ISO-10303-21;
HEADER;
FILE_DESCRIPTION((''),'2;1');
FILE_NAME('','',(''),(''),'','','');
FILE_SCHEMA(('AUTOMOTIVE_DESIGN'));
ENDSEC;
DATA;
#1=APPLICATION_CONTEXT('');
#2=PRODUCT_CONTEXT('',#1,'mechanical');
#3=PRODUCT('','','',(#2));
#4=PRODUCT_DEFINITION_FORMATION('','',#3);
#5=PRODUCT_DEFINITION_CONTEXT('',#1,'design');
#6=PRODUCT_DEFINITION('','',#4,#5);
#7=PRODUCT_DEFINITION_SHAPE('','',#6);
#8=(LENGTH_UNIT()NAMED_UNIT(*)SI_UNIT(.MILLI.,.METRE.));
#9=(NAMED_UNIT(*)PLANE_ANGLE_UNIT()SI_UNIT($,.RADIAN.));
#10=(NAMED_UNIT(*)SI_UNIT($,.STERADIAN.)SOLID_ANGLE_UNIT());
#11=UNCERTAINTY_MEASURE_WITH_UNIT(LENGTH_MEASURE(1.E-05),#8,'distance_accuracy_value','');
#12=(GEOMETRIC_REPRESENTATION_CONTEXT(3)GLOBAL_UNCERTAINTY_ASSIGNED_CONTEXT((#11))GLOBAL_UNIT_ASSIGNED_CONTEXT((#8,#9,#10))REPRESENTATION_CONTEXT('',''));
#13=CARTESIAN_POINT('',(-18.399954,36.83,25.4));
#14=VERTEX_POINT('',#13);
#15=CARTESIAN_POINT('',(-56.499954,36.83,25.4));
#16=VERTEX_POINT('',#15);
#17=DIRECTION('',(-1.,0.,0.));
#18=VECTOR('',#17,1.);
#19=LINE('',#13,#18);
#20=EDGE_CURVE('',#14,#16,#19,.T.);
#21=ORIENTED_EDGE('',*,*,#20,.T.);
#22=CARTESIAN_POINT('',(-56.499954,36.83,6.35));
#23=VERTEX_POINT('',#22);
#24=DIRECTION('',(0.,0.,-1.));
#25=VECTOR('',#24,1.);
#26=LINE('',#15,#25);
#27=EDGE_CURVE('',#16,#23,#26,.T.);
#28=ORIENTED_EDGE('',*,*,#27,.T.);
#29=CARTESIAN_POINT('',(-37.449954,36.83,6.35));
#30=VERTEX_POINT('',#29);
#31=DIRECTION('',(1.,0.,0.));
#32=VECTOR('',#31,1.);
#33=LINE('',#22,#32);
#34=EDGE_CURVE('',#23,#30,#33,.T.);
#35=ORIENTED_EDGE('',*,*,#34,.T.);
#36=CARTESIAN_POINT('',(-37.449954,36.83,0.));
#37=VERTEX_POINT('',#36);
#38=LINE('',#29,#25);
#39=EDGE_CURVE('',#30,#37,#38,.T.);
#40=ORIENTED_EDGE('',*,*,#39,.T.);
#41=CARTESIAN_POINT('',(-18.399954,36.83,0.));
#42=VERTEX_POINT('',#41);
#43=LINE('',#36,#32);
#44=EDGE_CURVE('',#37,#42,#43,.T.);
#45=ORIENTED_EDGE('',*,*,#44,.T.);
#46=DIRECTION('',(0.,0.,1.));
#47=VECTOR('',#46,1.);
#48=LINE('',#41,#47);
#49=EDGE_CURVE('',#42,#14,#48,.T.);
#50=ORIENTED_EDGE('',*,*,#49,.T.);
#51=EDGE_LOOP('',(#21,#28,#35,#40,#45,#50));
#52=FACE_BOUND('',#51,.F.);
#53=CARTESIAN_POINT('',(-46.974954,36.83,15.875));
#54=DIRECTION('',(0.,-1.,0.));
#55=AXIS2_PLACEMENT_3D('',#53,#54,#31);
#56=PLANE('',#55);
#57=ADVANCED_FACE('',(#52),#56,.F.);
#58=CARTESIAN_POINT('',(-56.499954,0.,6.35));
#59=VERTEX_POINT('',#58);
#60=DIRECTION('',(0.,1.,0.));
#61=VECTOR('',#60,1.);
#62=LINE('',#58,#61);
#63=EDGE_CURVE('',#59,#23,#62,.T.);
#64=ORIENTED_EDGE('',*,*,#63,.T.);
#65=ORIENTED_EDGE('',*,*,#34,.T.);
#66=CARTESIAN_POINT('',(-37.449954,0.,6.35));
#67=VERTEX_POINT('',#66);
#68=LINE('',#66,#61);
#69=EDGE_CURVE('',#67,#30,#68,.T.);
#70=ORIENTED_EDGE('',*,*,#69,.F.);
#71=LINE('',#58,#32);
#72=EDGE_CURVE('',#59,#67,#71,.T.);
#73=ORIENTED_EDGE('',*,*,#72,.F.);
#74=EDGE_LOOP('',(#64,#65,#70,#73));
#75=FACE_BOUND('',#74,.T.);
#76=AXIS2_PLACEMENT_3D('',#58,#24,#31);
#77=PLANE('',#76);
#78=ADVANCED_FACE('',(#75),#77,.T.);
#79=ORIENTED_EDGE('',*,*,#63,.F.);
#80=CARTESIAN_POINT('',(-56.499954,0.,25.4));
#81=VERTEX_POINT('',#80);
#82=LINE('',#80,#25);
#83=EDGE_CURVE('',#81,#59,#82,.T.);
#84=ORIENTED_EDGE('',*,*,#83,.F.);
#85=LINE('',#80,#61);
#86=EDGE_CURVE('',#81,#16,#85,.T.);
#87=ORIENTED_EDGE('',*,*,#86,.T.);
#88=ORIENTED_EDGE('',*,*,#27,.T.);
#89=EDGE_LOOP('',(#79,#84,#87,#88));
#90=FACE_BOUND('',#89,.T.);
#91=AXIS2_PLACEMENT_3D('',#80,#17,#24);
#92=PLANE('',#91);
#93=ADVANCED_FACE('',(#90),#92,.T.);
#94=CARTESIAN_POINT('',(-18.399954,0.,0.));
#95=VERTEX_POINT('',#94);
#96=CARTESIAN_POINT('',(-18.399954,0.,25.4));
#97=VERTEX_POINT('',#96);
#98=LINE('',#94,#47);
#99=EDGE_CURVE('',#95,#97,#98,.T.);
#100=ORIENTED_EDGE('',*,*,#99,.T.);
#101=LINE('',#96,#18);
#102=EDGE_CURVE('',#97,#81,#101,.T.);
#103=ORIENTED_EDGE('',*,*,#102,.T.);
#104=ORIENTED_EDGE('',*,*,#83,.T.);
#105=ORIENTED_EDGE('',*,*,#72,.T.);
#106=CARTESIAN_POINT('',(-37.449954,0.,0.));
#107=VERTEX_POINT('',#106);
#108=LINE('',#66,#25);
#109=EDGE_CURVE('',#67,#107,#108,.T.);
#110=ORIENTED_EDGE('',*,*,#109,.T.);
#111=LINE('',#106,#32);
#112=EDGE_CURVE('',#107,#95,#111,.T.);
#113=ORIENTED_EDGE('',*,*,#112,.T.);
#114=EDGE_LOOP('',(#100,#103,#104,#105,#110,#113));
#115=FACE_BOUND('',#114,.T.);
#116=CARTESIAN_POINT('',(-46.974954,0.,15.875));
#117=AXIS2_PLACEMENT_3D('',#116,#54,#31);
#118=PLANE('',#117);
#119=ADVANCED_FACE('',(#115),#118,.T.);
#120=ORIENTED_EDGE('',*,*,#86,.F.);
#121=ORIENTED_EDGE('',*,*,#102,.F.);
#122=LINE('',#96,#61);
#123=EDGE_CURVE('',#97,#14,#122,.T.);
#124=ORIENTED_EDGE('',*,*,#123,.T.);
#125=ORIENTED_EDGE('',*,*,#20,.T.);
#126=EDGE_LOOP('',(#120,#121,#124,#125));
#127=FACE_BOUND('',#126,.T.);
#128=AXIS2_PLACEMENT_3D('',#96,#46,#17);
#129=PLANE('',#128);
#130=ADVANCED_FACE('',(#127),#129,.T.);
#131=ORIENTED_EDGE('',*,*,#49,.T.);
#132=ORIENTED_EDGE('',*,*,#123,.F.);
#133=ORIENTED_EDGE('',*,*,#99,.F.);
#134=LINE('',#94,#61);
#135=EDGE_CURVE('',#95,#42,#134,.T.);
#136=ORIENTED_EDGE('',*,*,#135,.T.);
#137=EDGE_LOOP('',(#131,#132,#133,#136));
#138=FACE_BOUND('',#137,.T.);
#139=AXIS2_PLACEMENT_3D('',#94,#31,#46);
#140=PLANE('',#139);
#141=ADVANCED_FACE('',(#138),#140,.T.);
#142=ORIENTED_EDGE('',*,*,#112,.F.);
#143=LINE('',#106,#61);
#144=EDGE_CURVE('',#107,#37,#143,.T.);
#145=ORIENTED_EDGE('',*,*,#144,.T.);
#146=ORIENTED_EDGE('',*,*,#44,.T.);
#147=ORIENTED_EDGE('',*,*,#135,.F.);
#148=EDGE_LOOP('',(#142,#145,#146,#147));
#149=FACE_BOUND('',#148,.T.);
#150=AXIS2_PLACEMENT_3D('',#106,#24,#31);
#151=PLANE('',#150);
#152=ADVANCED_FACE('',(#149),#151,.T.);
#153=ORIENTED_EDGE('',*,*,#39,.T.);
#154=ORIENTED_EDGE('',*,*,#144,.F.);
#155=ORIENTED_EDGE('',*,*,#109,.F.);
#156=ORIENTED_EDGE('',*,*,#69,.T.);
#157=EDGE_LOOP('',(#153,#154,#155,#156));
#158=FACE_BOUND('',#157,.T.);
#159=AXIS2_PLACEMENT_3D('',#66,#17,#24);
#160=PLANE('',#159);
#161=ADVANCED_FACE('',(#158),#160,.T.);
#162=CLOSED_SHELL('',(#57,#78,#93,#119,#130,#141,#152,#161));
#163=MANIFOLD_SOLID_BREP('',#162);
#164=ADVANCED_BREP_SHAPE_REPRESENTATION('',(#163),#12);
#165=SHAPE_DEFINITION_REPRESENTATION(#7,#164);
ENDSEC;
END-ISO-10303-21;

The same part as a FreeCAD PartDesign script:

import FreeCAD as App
import Part
import Sketcher
from FreeCAD import Vector
Q = App.Units.Quantity


def add_polygon(sketch, points):
    """Adds a closed chain of lines whose ends are joined by coincident constraints."""
    first, n = sketch.GeometryCount, len(points)
    for a, b in zip(points, points[1:] + points[:1]):
        sketch.addGeometry(Part.LineSegment(App.Vector(*a, 0), App.Vector(*b, 0)), False)
    for i in range(n):
        sketch.addConstraint(Sketcher.Constraint("Coincident", first + i, 2, first + (i + 1) % n, 1))

doc = App.newDocument("Part")
body = doc.addObject("PartDesign::Body", "Body")

sketch1 = body.newObject("Sketcher::SketchObject", "Sketch")
sketch1.AttachmentSupport = (doc.getObject("XZ_Plane"), [""])
sketch1.MapMode = "FlatFace"
add_polygon(sketch1, [(-18, 25), (-56, 25), (-56, 6), (-37, 6), (-37, 0), (-18, 0)])
sketch1.addConstraint(Sketcher.Constraint("Horizontal", 0))
sketch1.addConstraint(Sketcher.Constraint("Vertical", 1))
sketch1.addConstraint(Sketcher.Constraint("Horizontal", 2))
sketch1.addConstraint(Sketcher.Constraint("Vertical", 3))
sketch1.addConstraint(Sketcher.Constraint("Horizontal", 4))
sketch1.addConstraint(Sketcher.Constraint("Vertical", 5))
sketch1.addConstraint(Sketcher.Constraint("PointOnObject", 3, 2, -1))
sketch1.addConstraint(Sketcher.Constraint("Equal", 2, 4))
sketch1.addConstraint(Sketcher.Constraint("Equal", 4, 1))
sketch1.addConstraint(Sketcher.Constraint("DistanceY", 5, 1, 5, 2, Q("1 in")))
sketch1.addConstraint(Sketcher.Constraint("DistanceX", 0, 2, 0, 1, Q("1.5 in")))
sketch1.addConstraint(Sketcher.Constraint("DistanceX", 0, 2, -1, 1, 56.499954))
pad1 = body.newObject("PartDesign::Pad", "Pad")
pad1.Profile = sketch1
pad1.Length = Q("1.45 in")
pad1.Reversed = True

doc.recompute()
